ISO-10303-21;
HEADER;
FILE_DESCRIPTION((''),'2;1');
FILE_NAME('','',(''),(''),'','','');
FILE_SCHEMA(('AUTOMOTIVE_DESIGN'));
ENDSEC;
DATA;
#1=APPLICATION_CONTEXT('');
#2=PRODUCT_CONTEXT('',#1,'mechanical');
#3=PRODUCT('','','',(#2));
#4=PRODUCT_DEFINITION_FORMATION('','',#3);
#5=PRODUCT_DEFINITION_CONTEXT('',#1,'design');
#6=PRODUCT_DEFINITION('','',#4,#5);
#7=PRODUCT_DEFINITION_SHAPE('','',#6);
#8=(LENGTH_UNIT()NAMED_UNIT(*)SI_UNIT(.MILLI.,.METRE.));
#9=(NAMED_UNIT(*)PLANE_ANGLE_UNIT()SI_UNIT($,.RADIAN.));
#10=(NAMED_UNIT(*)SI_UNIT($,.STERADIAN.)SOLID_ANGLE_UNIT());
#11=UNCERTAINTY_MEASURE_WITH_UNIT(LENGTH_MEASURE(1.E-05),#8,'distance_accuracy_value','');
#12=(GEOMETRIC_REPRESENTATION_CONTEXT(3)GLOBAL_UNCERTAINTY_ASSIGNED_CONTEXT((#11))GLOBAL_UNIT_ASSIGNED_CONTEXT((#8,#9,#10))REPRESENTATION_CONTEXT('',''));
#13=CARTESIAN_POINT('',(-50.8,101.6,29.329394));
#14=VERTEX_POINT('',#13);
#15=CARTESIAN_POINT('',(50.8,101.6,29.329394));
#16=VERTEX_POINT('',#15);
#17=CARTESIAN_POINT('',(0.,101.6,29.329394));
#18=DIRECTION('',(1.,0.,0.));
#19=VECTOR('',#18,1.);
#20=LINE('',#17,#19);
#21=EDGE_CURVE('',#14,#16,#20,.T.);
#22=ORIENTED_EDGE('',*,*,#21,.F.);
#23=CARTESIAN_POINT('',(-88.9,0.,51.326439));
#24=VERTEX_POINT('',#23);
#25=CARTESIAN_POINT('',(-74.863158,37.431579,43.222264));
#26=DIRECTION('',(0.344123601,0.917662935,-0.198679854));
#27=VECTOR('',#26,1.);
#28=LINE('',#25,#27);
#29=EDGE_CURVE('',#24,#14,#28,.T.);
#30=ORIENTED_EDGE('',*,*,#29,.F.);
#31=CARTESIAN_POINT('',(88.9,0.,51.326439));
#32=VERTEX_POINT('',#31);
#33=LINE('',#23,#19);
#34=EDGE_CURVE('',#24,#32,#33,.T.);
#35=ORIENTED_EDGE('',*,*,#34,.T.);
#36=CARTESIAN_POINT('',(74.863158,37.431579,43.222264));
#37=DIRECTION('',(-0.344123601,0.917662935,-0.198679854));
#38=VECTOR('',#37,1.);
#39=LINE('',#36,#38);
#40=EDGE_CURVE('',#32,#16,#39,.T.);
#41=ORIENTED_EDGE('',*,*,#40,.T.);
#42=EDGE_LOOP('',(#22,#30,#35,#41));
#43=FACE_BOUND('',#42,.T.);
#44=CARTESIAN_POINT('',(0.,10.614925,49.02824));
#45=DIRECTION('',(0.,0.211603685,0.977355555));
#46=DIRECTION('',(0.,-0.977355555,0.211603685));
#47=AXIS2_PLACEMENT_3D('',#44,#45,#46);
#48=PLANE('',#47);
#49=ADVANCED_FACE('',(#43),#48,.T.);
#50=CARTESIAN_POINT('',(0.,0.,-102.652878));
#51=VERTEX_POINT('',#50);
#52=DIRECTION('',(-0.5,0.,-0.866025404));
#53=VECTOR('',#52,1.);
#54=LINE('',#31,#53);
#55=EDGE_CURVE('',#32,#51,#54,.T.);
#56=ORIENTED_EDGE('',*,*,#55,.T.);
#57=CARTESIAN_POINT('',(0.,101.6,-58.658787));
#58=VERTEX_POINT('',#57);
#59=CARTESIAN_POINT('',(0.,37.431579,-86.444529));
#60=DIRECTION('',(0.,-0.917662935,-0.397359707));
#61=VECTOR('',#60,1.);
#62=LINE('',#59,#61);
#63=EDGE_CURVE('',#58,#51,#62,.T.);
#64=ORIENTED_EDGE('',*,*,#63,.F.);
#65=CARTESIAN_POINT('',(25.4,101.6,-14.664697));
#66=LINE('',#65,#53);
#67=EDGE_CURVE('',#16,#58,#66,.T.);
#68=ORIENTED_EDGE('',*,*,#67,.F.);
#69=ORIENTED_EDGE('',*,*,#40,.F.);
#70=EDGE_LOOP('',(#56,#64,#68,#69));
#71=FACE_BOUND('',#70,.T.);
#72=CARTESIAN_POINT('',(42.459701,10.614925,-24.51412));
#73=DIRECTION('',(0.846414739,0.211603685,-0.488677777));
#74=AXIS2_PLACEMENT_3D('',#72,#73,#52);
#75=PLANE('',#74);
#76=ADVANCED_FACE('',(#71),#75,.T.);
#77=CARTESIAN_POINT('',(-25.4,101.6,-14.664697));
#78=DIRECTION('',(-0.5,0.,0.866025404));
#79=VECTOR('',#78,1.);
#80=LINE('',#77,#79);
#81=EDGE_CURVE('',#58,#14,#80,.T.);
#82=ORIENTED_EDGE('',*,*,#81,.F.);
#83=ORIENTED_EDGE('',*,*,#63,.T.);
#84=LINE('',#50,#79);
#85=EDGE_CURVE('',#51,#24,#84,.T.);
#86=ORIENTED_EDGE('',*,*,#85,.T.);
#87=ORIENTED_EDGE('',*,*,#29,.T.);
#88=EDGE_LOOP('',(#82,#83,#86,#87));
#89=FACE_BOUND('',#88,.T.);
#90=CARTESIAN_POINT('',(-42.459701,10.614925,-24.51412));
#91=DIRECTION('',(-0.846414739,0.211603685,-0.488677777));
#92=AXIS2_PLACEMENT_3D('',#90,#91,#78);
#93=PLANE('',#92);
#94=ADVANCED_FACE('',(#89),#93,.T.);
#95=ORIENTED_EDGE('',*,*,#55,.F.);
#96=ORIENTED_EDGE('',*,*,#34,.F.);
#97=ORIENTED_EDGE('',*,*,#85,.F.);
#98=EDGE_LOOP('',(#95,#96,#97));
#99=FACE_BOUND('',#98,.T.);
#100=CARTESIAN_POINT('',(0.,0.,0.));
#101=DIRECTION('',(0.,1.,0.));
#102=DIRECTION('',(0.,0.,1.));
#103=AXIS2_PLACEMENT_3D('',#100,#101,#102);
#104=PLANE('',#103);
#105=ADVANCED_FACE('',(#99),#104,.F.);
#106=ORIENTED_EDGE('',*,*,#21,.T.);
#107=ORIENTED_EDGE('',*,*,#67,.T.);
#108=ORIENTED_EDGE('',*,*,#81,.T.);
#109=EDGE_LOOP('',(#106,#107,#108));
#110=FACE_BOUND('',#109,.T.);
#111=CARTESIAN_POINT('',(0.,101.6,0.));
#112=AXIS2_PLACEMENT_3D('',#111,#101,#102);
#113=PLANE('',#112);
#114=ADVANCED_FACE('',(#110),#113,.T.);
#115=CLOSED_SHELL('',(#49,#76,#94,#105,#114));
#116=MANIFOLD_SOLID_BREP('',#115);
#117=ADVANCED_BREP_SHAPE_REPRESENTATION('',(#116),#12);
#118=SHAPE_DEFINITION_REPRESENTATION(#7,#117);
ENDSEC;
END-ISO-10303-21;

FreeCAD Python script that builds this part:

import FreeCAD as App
import Part
import Sketcher

V = App.Vector
Q = App.Units.Quantity

doc = App.newDocument("Part")
params = doc.addObject("Spreadsheet::Sheet", "Params")
for row, (alias, value) in enumerate([
    ("sketch1_width", "7 in"),
    ("sketch1_length", "7 in"),
    ("pad1_length", "4 in"),
    ("pocket1_length", "6 in"),
    ("pocket2_length", "6 in"),
    ("pocket3_length", "6 in"),
], start=1):
    params.set(f"A{row}", alias)
    params.set(f"B{row}", "=" + value)
    params.setAlias(f"B{row}", alias)

body = doc.addObject("PartDesign::Body", "Body")

# Sketch on XZ plane
sketch1 = body.newObject("Sketcher::SketchObject", "Sketch")
sketch1.AttachmentSupport = (doc.getObject("XZ_Plane"), [""])
sketch1.MapMode = "FlatFace"
sketch1.addGeometry(Part.LineSegment(V(0, -103, 0), V(-89, 51, 0)), False)
sketch1.addGeometry(Part.LineSegment(V(-89, 51, 0), V(89, 51, 0)), False)
sketch1.addGeometry(Part.LineSegment(V(89, 51, 0), V(0, -103, 0)), False)
sketch1.addConstraint(Sketcher.Constraint("Coincident", 0, 2, 1, 1))
sketch1.addConstraint(Sketcher.Constraint("Coincident", 1, 2, 2, 1))
sketch1.addConstraint(Sketcher.Constraint("Coincident", 2, 2, 0, 1))
sketch1.addConstraint(Sketcher.Constraint("Horizontal", 1))
sketch1.addConstraint(Sketcher.Constraint("PointOnObject", 2, 2, -2))
sketch1.addConstraint(Sketcher.Constraint("Equal", 0, 2))
sketch1.addConstraint(Sketcher.Constraint("DistanceX", 1, 1, 1, 2, Q("7 in")))
sketch1.addConstraint(Sketcher.Constraint("Distance", 0, Q("7 in")))
sketch1.addConstraint(Sketcher.Constraint("DistanceY", -1, 1, 0, 2, Q("51.326439 mm")))
sketch1.setExpression("Constraints[6]", "Params.sketch1_width")
sketch1.setExpression("Constraints[7]", "Params.sketch1_length")
pad1 = body.newObject("PartDesign::Pad", "Pad")
pad1.Profile = sketch1
pad1.setExpression("Length", "Params.pad1_length")
pad1.Reversed = True

# Sketch on an angled plane
sketch2 = body.newObject("Sketcher::SketchObject", "Sketch001")
sketch2.Placement = App.Placement(V(-42.459701, 10.614925, -24.51412), App.Rotation(V(0.483244548, -0.080338132, -0.871791541), V(0.223733762, 0.974048081, 0.034256948), V(0.846414739, -0.211603685, 0.488677777), "ZXY"))
sketch2.addGeometry(Part.LineSegment(V(-192, 142, 0), V(-192, -90, 0)), False)
sketch2.addGeometry(Part.LineSegment(V(-192, -90, 0), V(223, -90, 0)), False)
sketch2.addGeometry(Part.LineSegment(V(223, -90, 0), V(223, 142, 0)), False)
sketch2.addGeometry(Part.LineSegment(V(223, 142, 0), V(-192, 142, 0)), False)
sketch2.addConstraint(Sketcher.Constraint("Coincident", 0, 2, 1, 1))
sketch2.addConstraint(Sketcher.Constraint("Coincident", 1, 2, 2, 1))
sketch2.addConstraint(Sketcher.Constraint("Coincident", 2, 2, 3, 1))
sketch2.addConstraint(Sketcher.Constraint("Coincident", 3, 2, 0, 1))
sketch2.addConstraint(Sketcher.Constraint("Vertical", 0))
sketch2.addConstraint(Sketcher.Constraint("Horizontal", 1))
sketch2.addConstraint(Sketcher.Constraint("Vertical", 2))
sketch2.addConstraint(Sketcher.Constraint("Horizontal", 3))
sketch2.addConstraint(Sketcher.Constraint("DistanceX", 1, 1, 1, 2, Q("415.713431 mm")))
sketch2.addConstraint(Sketcher.Constraint("DistanceY", 0, 2, 0, 1, Q("232.251633 mm")))
sketch2.addConstraint(Sketcher.Constraint("DistanceX", 0, 2, -1, 1, Q("192.33818 mm")))
sketch2.addConstraint(Sketcher.Constraint("DistanceY", 0, 2, -1, 1, Q("90.315477 mm")))
pocket1 = body.newObject("PartDesign::Pocket", "Pocket")
pocket1.Profile = sketch2
pocket1.setExpression("Length", "Params.pocket1_length")

# Sketch on an angled plane
sketch3 = body.newObject("Sketcher::SketchObject", "Sketch002")
sketch3.Placement = App.Placement(V(0, 10.614925, 49.02824), App.Rotation(V(-1, 0, 0), V(0, 0.977355555, -0.211603685), V(0, -0.211603685, -0.977355555), "ZXY"))
sketch3.addGeometry(Part.LineSegment(V(-158, 171, 0), V(-158, -86, 0)), False)
sketch3.addGeometry(Part.LineSegment(V(-158, -86, 0), V(172, -86, 0)), False)
sketch3.addGeometry(Part.LineSegment(V(172, -86, 0), V(172, 171, 0)), False)
sketch3.addGeometry(Part.LineSegment(V(172, 171, 0), V(-158, 171, 0)), False)
sketch3.addConstraint(Sketcher.Constraint("Coincident", 0, 2, 1, 1))
sketch3.addConstraint(Sketcher.Constraint("Coincident", 1, 2, 2, 1))
sketch3.addConstraint(Sketcher.Constraint("Coincident", 2, 2, 3, 1))
sketch3.addConstraint(Sketcher.Constraint("Coincident", 3, 2, 0, 1))
sketch3.addConstraint(Sketcher.Constraint("Vertical", 0))
sketch3.addConstraint(Sketcher.Constraint("Horizontal", 1))
sketch3.addConstraint(Sketcher.Constraint("Vertical", 2))
sketch3.addConstraint(Sketcher.Constraint("Horizontal", 3))
sketch3.addConstraint(Sketcher.Constraint("DistanceX", 1, 1, 1, 2, Q("330.261627 mm")))
sketch3.addConstraint(Sketcher.Constraint("DistanceY", 0, 2, 0, 1, Q("257.519115 mm")))
sketch3.addConstraint(Sketcher.Constraint("DistanceX", 0, 2, -1, 1, Q("158.338494 mm")))
sketch3.addConstraint(Sketcher.Constraint("DistanceY", 0, 2, -1, 1, Q("86.193298 mm")))
pocket2 = body.newObject("PartDesign::Pocket", "Pocket001")
pocket2.Profile = sketch3
pocket2.setExpression("Length", "Params.pocket2_length")

# Sketch on an angled plane
sketch4 = body.newObject("Sketcher::SketchObject", "Sketch003")
sketch4.Placement = App.Placement(V(42.459701, 10.614925, -24.51412), App.Rotation(V(0.483244548, 0.080338132, 0.871791541), V(-0.223733762, 0.974048081, 0.034256948), V(-0.846414739, -0.211603685, 0.488677777), "ZXY"))
sketch4.addGeometry(Part.LineSegment(V(-137, 154, 0), V(-137, -56, 0)), False)
sketch4.addGeometry(Part.LineSegment(V(-137, -56, 0), V(167, -56, 0)), False)
sketch4.addGeometry(Part.LineSegment(V(167, -56, 0), V(167, 154, 0)), False)
sketch4.addGeometry(Part.LineSegment(V(167, 154, 0), V(-137, 154, 0)), False)
sketch4.addConstraint(Sketcher.Constraint("Coincident", 0, 2, 1, 1))
sketch4.addConstraint(Sketcher.Constraint("Coincident", 1, 2, 2, 1))
sketch4.addConstraint(Sketcher.Constraint("Coincident", 2, 2, 3, 1))
sketch4.addConstraint(Sketcher.Constraint("Coincident", 3, 2, 0, 1))
sketch4.addConstraint(Sketcher.Constraint("Vertical", 0))
sketch4.addConstraint(Sketcher.Constraint("Horizontal", 1))
sketch4.addConstraint(Sketcher.Constraint("Vertical", 2))
sketch4.addConstraint(Sketcher.Constraint("Horizontal", 3))
sketch4.addConstraint(Sketcher.Constraint("DistanceY", -1, 1, 2, 2, Q("154.451099 mm")))
sketch4.addConstraint(Sketcher.Constraint("DistanceX", 1, 1, 1, 2, Q("304.133427 mm")))
sketch4.addConstraint(Sketcher.Constraint("DistanceY", 0, 2, 0, 1, Q("210.120003 mm")))
sketch4.addConstraint(Sketcher.Constraint("DistanceX", -1, 1, 1, 2, Q("167.499871 mm")))
pocket3 = body.newObject("PartDesign::Pocket", "Pocket002")
pocket3.Profile = sketch4
pocket3.setExpression("Length", "Params.pocket3_length")

doc.recompute()
